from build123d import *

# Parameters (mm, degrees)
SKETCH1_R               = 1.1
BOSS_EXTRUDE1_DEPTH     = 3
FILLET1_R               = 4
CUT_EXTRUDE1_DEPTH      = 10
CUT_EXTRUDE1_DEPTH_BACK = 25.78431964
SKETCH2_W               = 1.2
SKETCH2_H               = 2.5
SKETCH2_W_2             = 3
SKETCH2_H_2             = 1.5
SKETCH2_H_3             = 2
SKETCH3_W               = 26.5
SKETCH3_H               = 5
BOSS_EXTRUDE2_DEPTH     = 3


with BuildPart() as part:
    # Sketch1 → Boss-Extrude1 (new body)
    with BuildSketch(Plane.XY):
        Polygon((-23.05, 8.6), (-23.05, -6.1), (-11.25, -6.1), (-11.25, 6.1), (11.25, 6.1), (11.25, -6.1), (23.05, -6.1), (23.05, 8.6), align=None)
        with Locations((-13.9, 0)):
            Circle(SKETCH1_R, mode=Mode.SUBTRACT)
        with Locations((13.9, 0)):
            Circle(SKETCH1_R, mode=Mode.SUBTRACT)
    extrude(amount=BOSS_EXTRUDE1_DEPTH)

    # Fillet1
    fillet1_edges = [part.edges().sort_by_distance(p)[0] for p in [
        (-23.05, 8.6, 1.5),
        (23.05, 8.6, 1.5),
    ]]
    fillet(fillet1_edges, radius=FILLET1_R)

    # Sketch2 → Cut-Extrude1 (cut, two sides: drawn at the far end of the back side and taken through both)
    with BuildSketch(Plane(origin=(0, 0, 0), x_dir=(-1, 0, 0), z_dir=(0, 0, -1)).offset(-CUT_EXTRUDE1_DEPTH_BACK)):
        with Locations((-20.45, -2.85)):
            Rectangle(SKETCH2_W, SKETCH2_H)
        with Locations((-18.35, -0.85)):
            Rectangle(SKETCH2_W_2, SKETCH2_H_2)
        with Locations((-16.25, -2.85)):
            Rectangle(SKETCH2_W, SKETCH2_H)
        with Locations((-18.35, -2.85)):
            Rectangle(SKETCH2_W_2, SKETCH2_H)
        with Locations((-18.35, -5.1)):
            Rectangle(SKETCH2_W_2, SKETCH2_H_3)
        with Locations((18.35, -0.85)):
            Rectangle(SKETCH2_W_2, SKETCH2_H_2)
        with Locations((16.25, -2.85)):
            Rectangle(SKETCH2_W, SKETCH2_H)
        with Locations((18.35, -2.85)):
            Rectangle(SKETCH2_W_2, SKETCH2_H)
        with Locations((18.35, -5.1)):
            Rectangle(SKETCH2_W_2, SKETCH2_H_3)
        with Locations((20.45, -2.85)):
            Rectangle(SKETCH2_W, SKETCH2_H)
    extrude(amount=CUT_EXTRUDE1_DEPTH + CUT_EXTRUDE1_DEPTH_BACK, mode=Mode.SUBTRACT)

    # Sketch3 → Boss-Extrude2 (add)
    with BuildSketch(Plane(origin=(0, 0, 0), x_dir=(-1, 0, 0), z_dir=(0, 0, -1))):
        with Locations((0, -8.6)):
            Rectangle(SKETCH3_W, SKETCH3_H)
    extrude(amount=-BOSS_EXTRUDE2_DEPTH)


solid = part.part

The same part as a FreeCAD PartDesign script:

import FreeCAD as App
import Part
import Sketcher


def edges_at(feature, points):
    """Names of the edges that pass closest to the given points."""
    edges = feature.Shape.Edges
    near = lambda p: min(range(len(edges)), key=lambda i: edges[i].distToShape(Part.Vertex(*p))[0])
    return sorted({f"Edge{near(p) + 1}" for p in points})

doc = App.newDocument("Part")
body = doc.addObject("PartDesign::Body", "Body")

# Sketch on XY plane
sketch1 = doc.addObject("Sketcher::SketchObject", "Sketch")
body.addObject(sketch1)
sketch1.AttachmentSupport = (doc.XY_Plane, [""])
sketch1.MapMode = "FlatFace"
sketch1.addGeometry([
    Part.LineSegment(App.Vector(-23.1, 8.6, 0), App.Vector(-23.1, -6.1, 0)),  # 0
    Part.LineSegment(App.Vector(-23.1, -6.1, 0), App.Vector(-11.2, -6.1, 0)),  # 1
    Part.LineSegment(App.Vector(-11.2, -6.1, 0), App.Vector(-11.2, 6.1, 0)),  # 2
    Part.LineSegment(App.Vector(-11.2, 6.1, 0), App.Vector(11.2, 6.1, 0)),  # 3
    Part.LineSegment(App.Vector(11.2, 6.1, 0), App.Vector(11.2, -6.1, 0)),  # 4
    Part.LineSegment(App.Vector(11.2, -6.1, 0), App.Vector(23.1, -6.1, 0)),  # 5
    Part.LineSegment(App.Vector(23.1, -6.1, 0), App.Vector(23.1, 8.6, 0)),  # 6
    Part.LineSegment(App.Vector(23.1, 8.6, 0), App.Vector(-23.1, 8.6, 0)),  # 7
    Part.Circle(App.Vector(-13.9, 0, 0), App.Vector(0, 0, 1), 1.1),  # 8
    Part.Circle(App.Vector(13.9, 0, 0), App.Vector(0, 0, 1), 1.1),  # 9
], False)
sketch1.addConstraint([
    Sketcher.Constraint("Coincident", 0, 2, 1, 1),
    Sketcher.Constraint("Coincident", 1, 2, 2, 1),
    Sketcher.Constraint("Coincident", 2, 2, 3, 1),
    Sketcher.Constraint("Coincident", 3, 2, 4, 1),
    Sketcher.Constraint("Coincident", 4, 2, 5, 1),
    Sketcher.Constraint("Coincident", 5, 2, 6, 1),
    Sketcher.Constraint("Coincident", 6, 2, 7, 1),
    Sketcher.Constraint("Coincident", 7, 2, 0, 1),
    Sketcher.Constraint("Vertical", 0),
    Sketcher.Constraint("Horizontal", 1),
    Sketcher.Constraint("Vertical", 2),
    Sketcher.Constraint("Horizontal", 3),
    Sketcher.Constraint("Vertical", 4),
    Sketcher.Constraint("Horizontal", 5),
    Sketcher.Constraint("Vertical", 6),
    Sketcher.Constraint("Horizontal", 7),
    Sketcher.Constraint("Equal", 8, 9),
    Sketcher.Constraint("Symmetric", 8, 3, 9, 3, -1, 1),
    Sketcher.Constraint("Symmetric", 1, 2, 3, 2, -1, 1),
    Sketcher.Constraint("Symmetric", 0, 2, 5, 2, -2),
    Sketcher.Constraint("PointOnObject", 8, 3, -1),
    Sketcher.Constraint("Diameter", 8, 2.2),
    Sketcher.Constraint("DistanceX", 1, 1, 1, 2, 11.8),
    Sketcher.Constraint("DistanceX", 3, 1, 3, 2, 22.5),
    Sketcher.Constraint("DistanceY", 0, 2, 0, 1, 14.7),
    Sketcher.Constraint("DistanceY", 2, 1, 2, 2, 12.2),
    Sketcher.Constraint("DistanceX", 8, 3, -1, 1, 13.9),
])
pad1 = doc.addObject("PartDesign::Pad", "Pad")
body.addObject(pad1)
pad1.Profile = sketch1
pad1.Length = 3
doc.recompute()

fillet = doc.addObject("PartDesign::Fillet", "Fillet")
body.addObject(fillet)
fillet.Base = (pad1, edges_at(pad1, [(-23.05, 8.6, 1.5), (23.05, 8.6, 1.5)]))
fillet.Radius = 4

# Sketch on XY plane
sketch2 = doc.addObject("Sketcher::SketchObject", "Sketch001")
body.addObject(sketch2)
sketch2.AttachmentSupport = (doc.XY_Plane, [""])
sketch2.MapMode = "FlatFace"
sketch2.addGeometry([
    Part.LineSegment(App.Vector(21.1, -1.6, 0), App.Vector(21.1, -4.1, 0)),  # 0
    Part.LineSegment(App.Vector(21.1, -4.1, 0), App.Vector(19.9, -4.1, 0)),  # 1
    Part.LineSegment(App.Vector(19.9, -4.1, 0), App.Vector(19.9, -6.1, 0)),  # 2
    Part.LineSegment(App.Vector(19.9, -6.1, 0), App.Vector(16.9, -6.1, 0)),  # 3
    Part.LineSegment(App.Vector(16.9, -6.1, 0), App.Vector(16.9, -4.1, 0)),  # 4
    Part.LineSegment(App.Vector(16.9, -4.1, 0), App.Vector(15.7, -4.1, 0)),  # 5
    Part.LineSegment(App.Vector(15.7, -4.1, 0), App.Vector(15.7, -1.6, 0)),  # 6
    Part.LineSegment(App.Vector(15.7, -1.6, 0), App.Vector(16.9, -1.6, 0)),  # 7
    Part.LineSegment(App.Vector(16.9, -1.6, 0), App.Vector(16.9, -0.1, 0)),  # 8
    Part.LineSegment(App.Vector(16.9, -0.1, 0), App.Vector(19.9, -0.1, 0)),  # 9
    Part.LineSegment(App.Vector(19.9, -0.1, 0), App.Vector(19.9, -1.6, 0)),  # 10
    Part.LineSegment(App.Vector(19.9, -1.6, 0), App.Vector(21.1, -1.6, 0)),  # 11
    Part.LineSegment(App.Vector(-16.9, -0.1, 0), App.Vector(-16.9, -1.6, 0)),  # 12
    Part.LineSegment(App.Vector(-16.9, -1.6, 0), App.Vector(-15.7, -1.6, 0)),  # 13
    Part.LineSegment(App.Vector(-15.7, -1.6, 0), App.Vector(-15.7, -4.1, 0)),  # 14
    Part.LineSegment(App.Vector(-15.7, -4.1, 0), App.Vector(-16.9, -4.1, 0)),  # 15
    Part.LineSegment(App.Vector(-16.9, -4.1, 0), App.Vector(-16.9, -6.1, 0)),  # 16
    Part.LineSegment(App.Vector(-16.9, -6.1, 0), App.Vector(-19.9, -6.1, 0)),  # 17
    Part.LineSegment(App.Vector(-19.9, -6.1, 0), App.Vector(-19.9, -4.1, 0)),  # 18
    Part.LineSegment(App.Vector(-19.9, -4.1, 0), App.Vector(-21.1, -4.1, 0)),  # 19
    Part.LineSegment(App.Vector(-21.1, -4.1, 0), App.Vector(-21.1, -1.6, 0)),  # 20
    Part.LineSegment(App.Vector(-21.1, -1.6, 0), App.Vector(-19.9, -1.6, 0)),  # 21
    Part.LineSegment(App.Vector(-19.9, -1.6, 0), App.Vector(-19.9, -0.1, 0)),  # 22
    Part.LineSegment(App.Vector(-19.9, -0.1, 0), App.Vector(-16.9, -0.1, 0)),  # 23
], False)
sketch2.addConstraint([
    Sketcher.Constraint("Coincident", 0, 2, 1, 1),
    Sketcher.Constraint("Coincident", 1, 2, 2, 1),
    Sketcher.Constraint("Coincident", 2, 2, 3, 1),
    Sketcher.Constraint("Coincident", 3, 2, 4, 1),
    Sketcher.Constraint("Coincident", 4, 2, 5, 1),
    Sketcher.Constraint("Coincident", 5, 2, 6, 1),
    Sketcher.Constraint("Coincident", 6, 2, 7, 1),
    Sketcher.Constraint("Coincident", 7, 2, 8, 1),
    Sketcher.Constraint("Coincident", 8, 2, 9, 1),
    Sketcher.Constraint("Coincident", 9, 2, 10, 1),
    Sketcher.Constraint("Coincident", 10, 2, 11, 1),
    Sketcher.Constraint("Coincident", 11, 2, 0, 1),
    Sketcher.Constraint("Coincident", 12, 2, 13, 1),
    Sketcher.Constraint("Coincident", 13, 2, 14, 1),
    Sketcher.Constraint("Coincident", 14, 2, 15, 1),
    Sketcher.Constraint("Coincident", 15, 2, 16, 1),
    Sketcher.Constraint("Coincident", 16, 2, 17, 1),
    Sketcher.Constraint("Coincident", 17, 2, 18, 1),
    Sketcher.Constraint("Coincident", 18, 2, 19, 1),
    Sketcher.Constraint("Coincident", 19, 2, 20, 1),
    Sketcher.Constraint("Coincident", 20, 2, 21, 1),
    Sketcher.Constraint("Coincident", 21, 2, 22, 1),
    Sketcher.Constraint("Coincident", 22, 2, 23, 1),
    Sketcher.Constraint("Coincident", 23, 2, 12, 1),
    Sketcher.Constraint("Vertical", 0),
    Sketcher.Constraint("Horizontal", 1),
    Sketcher.Constraint("Vertical", 2),
    Sketcher.Constraint("Horizontal", 3),
    Sketcher.Constraint("Vertical", 4),
    Sketcher.Constraint("Horizontal", 5),
    Sketcher.Constraint("Vertical", 6),
    Sketcher.Constraint("Horizontal", 7),
    Sketcher.Constraint("Vertical", 8),
    Sketcher.Constraint("Horizontal", 9),
    Sketcher.Constraint("Vertical", 10),
    Sketcher.Constraint("Horizontal", 11),
    Sketcher.Constraint("Vertical", 12),
    Sketcher.Constraint("Horizontal", 13),
    Sketcher.Constraint("Vertical", 14),
    Sketcher.Constraint("Horizontal", 15),
    Sketcher.Constraint("Vertical", 16),
    Sketcher.Constraint("Horizontal", 17),
    Sketcher.Constraint("Vertical", 18),
    Sketcher.Constraint("Horizontal", 19),
    Sketcher.Constraint("Vertical", 20),
    Sketcher.Constraint("Horizontal", 21),
    Sketcher.Constraint("Vertical", 22),
    Sketcher.Constraint("Horizontal", 23),
    Sketcher.Constraint("Symmetric", 7, 2, 12, 2, -2),
    Sketcher.Constraint("Symmetric", 5, 2, 14, 2, -2),
    Sketcher.Constraint("Symmetric", 3, 2, 16, 2, -2),
    Sketcher.Constraint("Symmetric", 1, 2, 18, 2, -2),
    Sketcher.Constraint("Symmetric", 11, 2, 20, 2, -2),
    Sketcher.Constraint("Symmetric", 9, 2, 22, 2, -2),
    Sketcher.Constraint("Horizontal", 1, 2, 4, 2),
    Sketcher.Constraint("Horizontal", 7, 2, 10, 2),
    Sketcher.Constraint("Vertical", 4, 2, 7, 2),
    Sketcher.Constraint("Vertical", 2, 2, 9, 2),
    Sketcher.Constraint("Equal", 1, 5),
    Sketcher.Constraint("DistanceX", 3, 2, 3, 1, 3.0),
    Sketcher.Constraint("DistanceY", 2, 2, 2, 1, 2.0),
    Sketcher.Constraint("DistanceX", 1, 2, 1, 1, 1.2),
    Sketcher.Constraint("DistanceY", 0, 2, 0, 1, 2.5),
    Sketcher.Constraint("DistanceY", 8, 1, 8, 2, 1.5),
    Sketcher.Constraint("DistanceY", 0, 2, -1, 1, 4.1),
    Sketcher.Constraint("DistanceX", 12, 2, 6, 2, 32.5),
])
pocket1 = doc.addObject("PartDesign::Pocket", "Pocket")
body.addObject(pocket1)
pocket1.Profile = sketch2
pocket1.Type = "ThroughAll"
pocket1.Midplane = True

# Sketch on XY plane
sketch3 = doc.addObject("Sketcher::SketchObject", "Sketch002")
body.addObject(sketch3)
sketch3.AttachmentSupport = (doc.XY_Plane, [""])
sketch3.MapMode = "FlatFace"
sketch3.addGeometry([
    Part.LineSegment(App.Vector(13, -6, 0), App.Vector(13, -11, 0)),
    Part.LineSegment(App.Vector(13, -11, 0), App.Vector(-13, -11, 0)),
    Part.LineSegment(App.Vector(-13, -11, 0), App.Vector(-13, -6, 0)),
    Part.LineSegment(App.Vector(-13, -6, 0), App.Vector(13, -6, 0)),
], False)
sketch3.addConstraint([
    Sketcher.Constraint("Coincident", 0, 2, 1, 1),
    Sketcher.Constraint("Coincident", 1, 2, 2, 1),
    Sketcher.Constraint("Coincident", 2, 2, 3, 1),
    Sketcher.Constraint("Coincident", 3, 2, 0, 1),
    Sketcher.Constraint("Vertical", 0),
    Sketcher.Constraint("Horizontal", 1),
    Sketcher.Constraint("Vertical", 2),
    Sketcher.Constraint("Horizontal", 3),
    Sketcher.Constraint("DistanceY", 0, 2, 0, 1, 5.0),
    Sketcher.Constraint("DistanceX", 1, 2, 1, 1, 26.5),
    Sketcher.Constraint("DistanceY", 0, 2, -1, 1, 11.1),
    Sketcher.Constraint("DistanceX", -1, 1, 0, 2, 13.25),
])
pad2 = doc.addObject("PartDesign::Pad", "Pad001")
body.addObject(pad2)
pad2.Profile = sketch3
pad2.Length = 3

doc.recompute()
